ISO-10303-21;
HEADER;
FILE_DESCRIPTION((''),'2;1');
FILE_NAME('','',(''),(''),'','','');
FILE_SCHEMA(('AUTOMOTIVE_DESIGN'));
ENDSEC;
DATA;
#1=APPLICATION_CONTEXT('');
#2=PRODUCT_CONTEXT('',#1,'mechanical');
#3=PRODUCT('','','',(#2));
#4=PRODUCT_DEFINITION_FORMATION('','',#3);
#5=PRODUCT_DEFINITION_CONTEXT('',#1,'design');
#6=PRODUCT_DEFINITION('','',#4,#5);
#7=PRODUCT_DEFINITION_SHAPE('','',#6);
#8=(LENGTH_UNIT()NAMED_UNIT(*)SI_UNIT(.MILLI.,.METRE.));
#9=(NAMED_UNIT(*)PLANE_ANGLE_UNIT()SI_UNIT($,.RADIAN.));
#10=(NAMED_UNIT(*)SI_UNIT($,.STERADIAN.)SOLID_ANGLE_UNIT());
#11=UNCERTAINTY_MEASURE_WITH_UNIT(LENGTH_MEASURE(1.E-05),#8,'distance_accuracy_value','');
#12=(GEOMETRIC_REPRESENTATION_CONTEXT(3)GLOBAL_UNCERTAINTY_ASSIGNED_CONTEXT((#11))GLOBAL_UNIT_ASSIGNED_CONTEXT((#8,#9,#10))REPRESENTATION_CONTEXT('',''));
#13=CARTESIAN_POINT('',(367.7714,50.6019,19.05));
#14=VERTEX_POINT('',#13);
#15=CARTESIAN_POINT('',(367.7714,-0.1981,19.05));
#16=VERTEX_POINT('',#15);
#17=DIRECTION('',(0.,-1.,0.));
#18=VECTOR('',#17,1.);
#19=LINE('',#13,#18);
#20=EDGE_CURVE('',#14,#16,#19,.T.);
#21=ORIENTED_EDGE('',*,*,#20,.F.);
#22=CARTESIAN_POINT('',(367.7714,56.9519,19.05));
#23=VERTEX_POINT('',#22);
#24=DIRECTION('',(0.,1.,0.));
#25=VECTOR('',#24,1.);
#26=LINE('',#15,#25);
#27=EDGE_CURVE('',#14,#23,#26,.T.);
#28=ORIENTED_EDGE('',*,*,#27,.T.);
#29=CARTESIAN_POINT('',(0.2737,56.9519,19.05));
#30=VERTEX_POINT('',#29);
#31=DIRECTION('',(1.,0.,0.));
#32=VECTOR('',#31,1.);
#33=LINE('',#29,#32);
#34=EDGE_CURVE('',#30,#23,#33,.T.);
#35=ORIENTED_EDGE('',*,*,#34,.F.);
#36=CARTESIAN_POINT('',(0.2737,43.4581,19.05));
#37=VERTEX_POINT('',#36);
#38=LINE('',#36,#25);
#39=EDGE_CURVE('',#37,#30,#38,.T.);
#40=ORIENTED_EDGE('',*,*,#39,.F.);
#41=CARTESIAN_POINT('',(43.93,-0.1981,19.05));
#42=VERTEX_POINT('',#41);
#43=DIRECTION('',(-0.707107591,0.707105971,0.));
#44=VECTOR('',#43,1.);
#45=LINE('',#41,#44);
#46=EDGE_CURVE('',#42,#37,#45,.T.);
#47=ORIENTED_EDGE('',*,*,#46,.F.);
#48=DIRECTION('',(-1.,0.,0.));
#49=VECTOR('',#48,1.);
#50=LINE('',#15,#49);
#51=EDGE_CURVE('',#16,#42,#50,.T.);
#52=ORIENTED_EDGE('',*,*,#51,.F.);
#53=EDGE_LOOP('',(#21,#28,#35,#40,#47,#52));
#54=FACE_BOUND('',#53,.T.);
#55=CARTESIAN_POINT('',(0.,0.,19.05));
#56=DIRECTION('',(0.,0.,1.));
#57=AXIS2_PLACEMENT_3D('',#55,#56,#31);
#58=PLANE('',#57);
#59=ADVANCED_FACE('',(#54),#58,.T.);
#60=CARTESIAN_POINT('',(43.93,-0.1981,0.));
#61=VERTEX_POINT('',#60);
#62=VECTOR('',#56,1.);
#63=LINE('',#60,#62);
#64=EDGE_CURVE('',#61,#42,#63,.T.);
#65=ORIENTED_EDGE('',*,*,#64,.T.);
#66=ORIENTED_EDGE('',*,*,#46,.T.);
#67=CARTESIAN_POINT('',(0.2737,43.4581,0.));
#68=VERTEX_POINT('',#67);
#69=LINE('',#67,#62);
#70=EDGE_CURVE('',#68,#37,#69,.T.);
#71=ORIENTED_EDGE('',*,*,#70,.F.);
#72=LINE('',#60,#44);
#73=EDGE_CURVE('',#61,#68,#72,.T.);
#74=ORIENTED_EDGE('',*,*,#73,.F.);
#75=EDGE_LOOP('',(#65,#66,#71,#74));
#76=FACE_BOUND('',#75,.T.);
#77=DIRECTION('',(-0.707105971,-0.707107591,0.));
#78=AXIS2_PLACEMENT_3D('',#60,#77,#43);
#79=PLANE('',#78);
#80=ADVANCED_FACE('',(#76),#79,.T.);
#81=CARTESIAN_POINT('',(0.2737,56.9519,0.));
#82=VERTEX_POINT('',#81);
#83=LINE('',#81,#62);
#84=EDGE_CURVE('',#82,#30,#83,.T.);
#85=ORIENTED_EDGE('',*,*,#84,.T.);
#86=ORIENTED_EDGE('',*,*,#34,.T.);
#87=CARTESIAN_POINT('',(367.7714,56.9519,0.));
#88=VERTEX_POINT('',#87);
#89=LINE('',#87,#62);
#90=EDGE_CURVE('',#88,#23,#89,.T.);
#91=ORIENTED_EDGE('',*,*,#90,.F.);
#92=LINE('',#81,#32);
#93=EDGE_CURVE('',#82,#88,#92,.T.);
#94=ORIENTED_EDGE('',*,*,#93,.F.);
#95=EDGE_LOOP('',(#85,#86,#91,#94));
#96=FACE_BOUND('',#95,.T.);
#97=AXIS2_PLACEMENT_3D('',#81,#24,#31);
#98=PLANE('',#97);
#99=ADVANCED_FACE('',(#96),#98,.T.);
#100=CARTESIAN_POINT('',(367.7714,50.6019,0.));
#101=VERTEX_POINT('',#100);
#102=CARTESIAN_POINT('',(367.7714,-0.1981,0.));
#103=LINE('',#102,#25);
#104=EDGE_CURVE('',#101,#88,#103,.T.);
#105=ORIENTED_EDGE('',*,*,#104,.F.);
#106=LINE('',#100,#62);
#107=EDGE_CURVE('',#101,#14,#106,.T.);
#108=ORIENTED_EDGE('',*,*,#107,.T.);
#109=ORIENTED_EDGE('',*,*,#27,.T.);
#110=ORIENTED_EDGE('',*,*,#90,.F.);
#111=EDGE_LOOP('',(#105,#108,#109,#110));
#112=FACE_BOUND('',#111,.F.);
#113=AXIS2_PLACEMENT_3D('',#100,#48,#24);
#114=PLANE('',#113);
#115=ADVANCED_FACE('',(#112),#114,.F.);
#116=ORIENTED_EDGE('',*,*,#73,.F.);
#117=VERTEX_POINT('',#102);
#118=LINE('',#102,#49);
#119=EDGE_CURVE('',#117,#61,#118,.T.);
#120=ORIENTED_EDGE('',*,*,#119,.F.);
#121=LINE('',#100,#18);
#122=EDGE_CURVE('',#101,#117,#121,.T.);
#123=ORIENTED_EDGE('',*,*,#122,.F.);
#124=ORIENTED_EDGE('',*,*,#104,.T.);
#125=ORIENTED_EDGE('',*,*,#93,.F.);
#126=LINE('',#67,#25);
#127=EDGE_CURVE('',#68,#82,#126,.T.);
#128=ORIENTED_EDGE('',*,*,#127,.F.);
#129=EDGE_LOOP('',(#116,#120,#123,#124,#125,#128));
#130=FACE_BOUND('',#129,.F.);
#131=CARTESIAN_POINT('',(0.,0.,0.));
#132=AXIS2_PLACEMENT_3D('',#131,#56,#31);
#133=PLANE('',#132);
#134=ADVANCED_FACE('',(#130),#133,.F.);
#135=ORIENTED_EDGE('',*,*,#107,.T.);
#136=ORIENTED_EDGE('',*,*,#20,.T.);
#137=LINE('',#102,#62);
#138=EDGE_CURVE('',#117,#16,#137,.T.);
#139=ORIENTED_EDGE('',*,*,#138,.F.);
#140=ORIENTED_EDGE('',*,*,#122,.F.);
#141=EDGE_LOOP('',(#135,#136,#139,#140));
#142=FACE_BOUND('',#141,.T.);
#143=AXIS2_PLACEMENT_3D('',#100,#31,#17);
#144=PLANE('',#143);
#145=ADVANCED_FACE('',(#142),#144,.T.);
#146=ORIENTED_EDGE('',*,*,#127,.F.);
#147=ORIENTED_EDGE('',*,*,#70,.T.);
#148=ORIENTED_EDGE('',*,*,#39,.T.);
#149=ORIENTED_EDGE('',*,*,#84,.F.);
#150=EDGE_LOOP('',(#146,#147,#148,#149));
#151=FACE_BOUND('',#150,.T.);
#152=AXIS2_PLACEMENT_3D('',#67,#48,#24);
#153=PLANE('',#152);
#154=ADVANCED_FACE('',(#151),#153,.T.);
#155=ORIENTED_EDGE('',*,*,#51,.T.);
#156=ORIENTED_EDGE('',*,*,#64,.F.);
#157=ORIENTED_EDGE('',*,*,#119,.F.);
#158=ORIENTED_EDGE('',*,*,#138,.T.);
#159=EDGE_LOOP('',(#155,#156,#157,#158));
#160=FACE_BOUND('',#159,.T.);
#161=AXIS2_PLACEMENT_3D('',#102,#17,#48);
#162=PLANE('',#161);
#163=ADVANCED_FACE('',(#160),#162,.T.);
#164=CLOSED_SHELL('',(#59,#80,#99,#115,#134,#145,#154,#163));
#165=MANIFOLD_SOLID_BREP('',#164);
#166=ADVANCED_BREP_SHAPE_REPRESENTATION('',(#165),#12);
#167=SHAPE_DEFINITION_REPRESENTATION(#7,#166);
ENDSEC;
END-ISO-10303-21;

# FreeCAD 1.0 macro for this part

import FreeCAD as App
import Part
import Sketcher
Q = App.Units.Quantity

doc = App.newDocument("Part")
params = doc.addObject("Spreadsheet::Sheet", "Params")
for row, (alias, value) in enumerate([
    ("sketch1_height", "2.25 in"),
    ("sketch1_height2", "0.531252 in"),
    ("pad1_length", "0.75 in"),
], start=1):
    params.set(f"A{row}", alias)
    params.set(f"B{row}", "=" + value)
    params.setAlias(f"B{row}", alias)

body = doc.addObject("PartDesign::Body", "Body")

sketch1 = body.newObject("Sketcher::SketchObject", "Sketch")
sketch1.AttachmentSupport = (doc.getObject("XY_Plane"), [""])
sketch1.MapMode = "FlatFace"
sketch1.addGeometry([
    Part.LineSegment(App.Vector(368, 0, 0), App.Vector(368, 57, 0)),
    Part.LineSegment(App.Vector(368, 57, 0), App.Vector(0, 57, 0)),
    Part.LineSegment(App.Vector(0, 57, 0), App.Vector(0, 43, 0)),
    Part.LineSegment(App.Vector(0, 43, 0), App.Vector(44, 0, 0)),
    Part.LineSegment(App.Vector(44, 0, 0), App.Vector(368, 0, 0)),
], False)
sketch1.addConstraint([
    Sketcher.Constraint("Coincident", 0, 2, 1, 1),
    Sketcher.Constraint("Coincident", 1, 2, 2, 1),
    Sketcher.Constraint("Coincident", 2, 2, 3, 1),
    Sketcher.Constraint("Coincident", 3, 2, 4, 1),
    Sketcher.Constraint("Coincident", 4, 2, 0, 1),
    Sketcher.Constraint("Vertical", 0),
    Sketcher.Constraint("Horizontal", 1),
    Sketcher.Constraint("Vertical", 2),
    Sketcher.Constraint("Horizontal", 4),
    Sketcher.Constraint("Angle", 3, Q("-45 deg")),
    Sketcher.Constraint("DistanceY", 0, 1, 0, 2, Q("2.25 in")),
    Sketcher.Constraint("DistanceY", 2, 2, 2, 1, Q("0.531252 in")),
    Sketcher.Constraint("DistanceX", 1, 2, 1, 1, Q("367.4977 mm")),
    Sketcher.Constraint("DistanceX", -1, 1, 0, 2, Q("14.4792 in")),
    Sketcher.Constraint("DistanceY", -1, 1, 0, 2, Q("2.2422 in")),
])
sketch1.setExpression("Constraints[10]", "Params.sketch1_height")
sketch1.setExpression("Constraints[11]", "Params.sketch1_height2")
pad1 = body.newObject("PartDesign::Pad", "Pad")
pad1.Profile = sketch1
pad1.setExpression("Length", "Params.pad1_length")

doc.recompute()
